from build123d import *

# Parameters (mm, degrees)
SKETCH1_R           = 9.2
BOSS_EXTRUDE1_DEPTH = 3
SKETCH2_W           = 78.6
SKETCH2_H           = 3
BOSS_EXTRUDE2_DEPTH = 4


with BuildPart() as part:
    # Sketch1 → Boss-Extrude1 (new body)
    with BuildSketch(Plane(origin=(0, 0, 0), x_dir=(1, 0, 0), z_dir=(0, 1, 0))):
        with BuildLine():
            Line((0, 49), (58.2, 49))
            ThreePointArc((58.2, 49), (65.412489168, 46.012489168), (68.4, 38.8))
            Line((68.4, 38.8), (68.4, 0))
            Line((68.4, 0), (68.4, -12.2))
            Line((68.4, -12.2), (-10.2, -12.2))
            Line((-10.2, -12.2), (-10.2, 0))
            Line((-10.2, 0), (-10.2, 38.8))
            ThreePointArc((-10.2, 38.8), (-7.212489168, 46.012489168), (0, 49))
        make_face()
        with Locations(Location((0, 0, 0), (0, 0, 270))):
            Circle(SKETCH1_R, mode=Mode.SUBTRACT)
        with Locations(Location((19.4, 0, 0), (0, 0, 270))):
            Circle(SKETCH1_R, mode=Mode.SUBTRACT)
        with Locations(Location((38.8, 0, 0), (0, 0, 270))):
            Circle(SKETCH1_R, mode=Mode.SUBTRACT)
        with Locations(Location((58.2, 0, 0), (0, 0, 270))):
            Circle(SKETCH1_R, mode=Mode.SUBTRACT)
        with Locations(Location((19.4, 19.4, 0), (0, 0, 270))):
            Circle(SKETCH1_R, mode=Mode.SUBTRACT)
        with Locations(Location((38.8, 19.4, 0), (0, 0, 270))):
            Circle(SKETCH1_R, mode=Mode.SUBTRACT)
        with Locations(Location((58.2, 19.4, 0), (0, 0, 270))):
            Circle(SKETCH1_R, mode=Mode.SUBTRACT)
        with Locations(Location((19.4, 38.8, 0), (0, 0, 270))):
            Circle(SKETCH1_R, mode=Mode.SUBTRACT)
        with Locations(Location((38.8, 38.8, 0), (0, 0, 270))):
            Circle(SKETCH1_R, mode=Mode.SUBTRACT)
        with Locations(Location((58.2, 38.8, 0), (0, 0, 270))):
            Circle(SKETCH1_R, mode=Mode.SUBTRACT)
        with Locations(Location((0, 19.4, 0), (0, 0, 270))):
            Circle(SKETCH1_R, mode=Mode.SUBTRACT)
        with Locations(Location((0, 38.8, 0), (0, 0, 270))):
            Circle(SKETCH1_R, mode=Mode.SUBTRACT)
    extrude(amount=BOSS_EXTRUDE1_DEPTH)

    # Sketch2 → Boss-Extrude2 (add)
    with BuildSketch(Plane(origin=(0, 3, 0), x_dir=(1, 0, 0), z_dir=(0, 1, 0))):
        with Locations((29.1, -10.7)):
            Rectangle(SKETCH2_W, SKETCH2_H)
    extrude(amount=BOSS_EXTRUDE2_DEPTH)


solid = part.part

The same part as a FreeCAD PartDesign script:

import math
import FreeCAD as App
import Part
import Sketcher

V = App.Vector

doc = App.newDocument("Part")
body = doc.addObject("PartDesign::Body", "Body")

sketch1 = body.newObject("Sketcher::SketchObject", "Sketch")
sketch1.AttachmentSupport = (doc.getObject("XZ_Plane"), [""])
sketch1.MapMode = "FlatFace"
sketch1.addGeometry([
    Part.LineSegment(V(58, -49, 0), V(0, -49, 0)),
    Part.ArcOfCircle(Part.Circle(V(0, -39, 0), V(0, 0, 1), 10), math.radians(180), math.radians(270)),
    Part.LineSegment(V(-10, -39, 0), V(-10, 12, 0)),
    Part.LineSegment(V(-10, 12, 0), V(68, 12, 0)),
    Part.LineSegment(V(68, 12, 0), V(68, -39, 0)),
    Part.ArcOfCircle(Part.Circle(V(58, -39, 0), V(0, 0, 1), 10), math.radians(-90), math.radians(0)),
    Part.Circle(V(58, 0, 0), V(0, 0, 1), 9),
    Part.Circle(V(39, 0, 0), V(0, 0, 1), 9),
    Part.Circle(V(19, 0, 0), V(0, 0, 1), 9),
    Part.Circle(V(0, 0, 0), V(0, 0, 1), 9),
    Part.Circle(V(58, -19, 0), V(0, 0, 1), 9),
    Part.Circle(V(39, -19, 0), V(0, 0, 1), 9),
    Part.Circle(V(58, -39, 0), V(0, 0, 1), 9),
    Part.Circle(V(39, -39, 0), V(0, 0, 1), 9),
    Part.Circle(V(19, -19, 0), V(0, 0, 1), 9),
    Part.Circle(V(0, -19, 0), V(0, 0, 1), 9),
    Part.Circle(V(19, -39, 0), V(0, 0, 1), 9),
    Part.Circle(V(0, -39, 0), V(0, 0, 1), 9),
], False)
sketch1.addConstraint([
    Sketcher.Constraint("Tangent", 0, 2, 1, 2),
    Sketcher.Constraint("Tangent", 1, 1, 2, 1),
    Sketcher.Constraint("Coincident", 2, 2, 3, 1),
    Sketcher.Constraint("Coincident", 3, 2, 4, 1),
    Sketcher.Constraint("Tangent", 4, 2, 5, 2),
    Sketcher.Constraint("Tangent", 5, 1, 0, 1),
    Sketcher.Constraint("Horizontal", 0),
    Sketcher.Constraint("Vertical", 2),
    Sketcher.Constraint("Horizontal", 3),
    Sketcher.Constraint("Vertical", 4),
    Sketcher.Constraint("Coincident", 9, 3, -1, 1),
    Sketcher.Constraint("Coincident", 12, 3, 5, 3),
    Sketcher.Constraint("Coincident", 17, 3, 1, 3),
    Sketcher.Constraint("Equal", 1, 5),
    Sketcher.Constraint("Equal", 6, 7),
    Sketcher.Constraint("Equal", 7, 8),
    Sketcher.Constraint("Equal", 8, 9),
    Sketcher.Constraint("Equal", 9, 10),
    Sketcher.Constraint("Equal", 10, 11),
    Sketcher.Constraint("Equal", 11, 12),
    Sketcher.Constraint("Equal", 12, 13),
    Sketcher.Constraint("Equal", 13, 14),
    Sketcher.Constraint("Equal", 14, 15),
    Sketcher.Constraint("Equal", 15, 16),
    Sketcher.Constraint("Equal", 16, 17),
    Sketcher.Constraint("PointOnObject", 1, 3, -2),
    Sketcher.Constraint("PointOnObject", 6, 3, -1),
    Sketcher.Constraint("PointOnObject", 7, 3, -1),
    Sketcher.Constraint("PointOnObject", 8, 3, -1),
    Sketcher.Constraint("PointOnObject", 15, 3, -2),
    Sketcher.Constraint("Horizontal", 10, 3, 11, 3),
    Sketcher.Constraint("Horizontal", 12, 3, 13, 3),
    Sketcher.Constraint("Horizontal", 11, 3, 14, 3),
    Sketcher.Constraint("Horizontal", 14, 3, 15, 3),
    Sketcher.Constraint("Horizontal", 13, 3, 16, 3),
    Sketcher.Constraint("Vertical", 5, 3, 6, 3),
    Sketcher.Constraint("Vertical", 6, 3, 10, 3),
    Sketcher.Constraint("Vertical", 7, 3, 11, 3),
    Sketcher.Constraint("Vertical", 11, 3, 13, 3),
    Sketcher.Constraint("Vertical", 8, 3, 14, 3),
    Sketcher.Constraint("Vertical", 14, 3, 16, 3),
    Sketcher.Constraint("Diameter", 6, 18.4),
    Sketcher.Constraint("Radius", 1, 10.2),
    Sketcher.Constraint("DistanceY", 2, 1, 2, 2, 51.0),
    Sketcher.Constraint("DistanceX", 0, 2, 0, 1, 58.2),
    Sketcher.Constraint("DistanceY", 0, 2, -1, 1, 49.0),
    Sketcher.Constraint("DistanceX", 2, 2, 7, 3, 49.0),
    Sketcher.Constraint("DistanceX", 8, 3, 3, 2, 49.0),
    Sketcher.Constraint("DistanceY", 10, 3, -1, 1, 19.4),
])
pad1 = body.newObject("PartDesign::Pad", "Pad")
pad1.Profile = sketch1
pad1.Length = 3
pad1.Reversed = True

sketch2 = body.newObject("Sketcher::SketchObject", "Sketch001")
sketch2.AttachmentSupport = (doc.getObject("XZ_Plane"), [""])
sketch2.MapMode = "FlatFace"
sketch2.AttachmentOffset = App.Placement(V(0, 0, -3), App.Rotation())
sketch2.addGeometry([
    Part.LineSegment(V(-10.2, 9.2, 0), V(-10.2, 12.2, 0)),
    Part.LineSegment(V(-10.2, 12.2, 0), V(68.4, 12.2, 0)),
    Part.LineSegment(V(68.4, 12.2, 0), V(68.4, 9.2, 0)),
    Part.LineSegment(V(68.4, 9.2, 0), V(-10.2, 9.2, 0)),
], False)
sketch2.addConstraint([
    Sketcher.Constraint("Coincident", 0, 2, 1, 1),
    Sketcher.Constraint("Coincident", 1, 2, 2, 1),
    Sketcher.Constraint("Coincident", 2, 2, 3, 1),
    Sketcher.Constraint("Coincident", 3, 2, 0, 1),
    Sketcher.Constraint("Vertical", 0),
    Sketcher.Constraint("Horizontal", 1),
    Sketcher.Constraint("Vertical", 2),
    Sketcher.Constraint("Horizontal", 3),
    Sketcher.Constraint("DistanceY", 0, 1, 0, 2, 3.0),
    Sketcher.Constraint("DistanceX", 1, 1, 1, 2, 78.6),
    Sketcher.Constraint("DistanceX", 0, 2, -1, 1, 10.2),
    Sketcher.Constraint("DistanceY", -1, 1, 0, 2, 12.2),
])
pad2 = body.newObject("PartDesign::Pad", "Pad001")
pad2.Profile = sketch2
pad2.Length = 4
pad2.Reversed = True

doc.recompute()
